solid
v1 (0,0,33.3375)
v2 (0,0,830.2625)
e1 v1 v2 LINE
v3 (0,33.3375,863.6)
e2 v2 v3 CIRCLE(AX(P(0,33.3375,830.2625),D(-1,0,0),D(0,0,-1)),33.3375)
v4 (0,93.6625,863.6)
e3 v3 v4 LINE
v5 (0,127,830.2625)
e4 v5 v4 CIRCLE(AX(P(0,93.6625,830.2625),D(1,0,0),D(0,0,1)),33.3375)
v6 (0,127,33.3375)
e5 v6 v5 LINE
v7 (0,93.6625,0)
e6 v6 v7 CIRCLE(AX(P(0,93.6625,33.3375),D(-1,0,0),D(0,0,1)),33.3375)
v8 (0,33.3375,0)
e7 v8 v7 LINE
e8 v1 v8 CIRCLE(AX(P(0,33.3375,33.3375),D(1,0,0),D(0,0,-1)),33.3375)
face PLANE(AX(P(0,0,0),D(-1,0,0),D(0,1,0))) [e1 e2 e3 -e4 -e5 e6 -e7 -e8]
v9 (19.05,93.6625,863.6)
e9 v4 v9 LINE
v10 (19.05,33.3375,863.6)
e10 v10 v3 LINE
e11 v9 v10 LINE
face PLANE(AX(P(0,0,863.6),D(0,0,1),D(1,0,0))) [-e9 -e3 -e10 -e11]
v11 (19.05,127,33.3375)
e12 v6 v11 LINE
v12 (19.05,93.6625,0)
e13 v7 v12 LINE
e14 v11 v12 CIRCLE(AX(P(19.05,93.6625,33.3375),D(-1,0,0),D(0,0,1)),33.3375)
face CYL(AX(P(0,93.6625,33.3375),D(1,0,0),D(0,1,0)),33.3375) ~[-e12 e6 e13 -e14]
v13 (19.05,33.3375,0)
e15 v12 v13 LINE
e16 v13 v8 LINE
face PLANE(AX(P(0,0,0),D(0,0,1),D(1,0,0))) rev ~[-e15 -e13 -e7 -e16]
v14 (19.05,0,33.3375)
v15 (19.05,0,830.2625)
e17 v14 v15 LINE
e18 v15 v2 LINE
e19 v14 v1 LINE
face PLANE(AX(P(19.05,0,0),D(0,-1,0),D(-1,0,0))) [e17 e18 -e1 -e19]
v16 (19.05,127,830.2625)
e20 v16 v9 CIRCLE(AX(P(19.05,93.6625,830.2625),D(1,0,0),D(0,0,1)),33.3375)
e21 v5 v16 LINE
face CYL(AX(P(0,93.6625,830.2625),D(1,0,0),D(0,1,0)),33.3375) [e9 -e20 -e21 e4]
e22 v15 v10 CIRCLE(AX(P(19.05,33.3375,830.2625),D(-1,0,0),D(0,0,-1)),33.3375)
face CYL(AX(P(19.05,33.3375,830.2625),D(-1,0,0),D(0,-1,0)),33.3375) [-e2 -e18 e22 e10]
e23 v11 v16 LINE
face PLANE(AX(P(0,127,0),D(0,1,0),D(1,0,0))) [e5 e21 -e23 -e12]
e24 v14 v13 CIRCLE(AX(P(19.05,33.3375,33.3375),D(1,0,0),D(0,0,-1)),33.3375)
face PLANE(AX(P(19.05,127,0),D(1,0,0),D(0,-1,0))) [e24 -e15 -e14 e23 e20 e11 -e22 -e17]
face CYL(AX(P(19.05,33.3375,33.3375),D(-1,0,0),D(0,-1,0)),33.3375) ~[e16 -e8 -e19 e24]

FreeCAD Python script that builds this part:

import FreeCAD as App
import Part
import Sketcher
Q = App.Units.Quantity


def edges_at(feature, points):
    """Names of the edges that pass closest to the given points."""
    edges = feature.Shape.Edges
    near = lambda p: min(range(len(edges)), key=lambda i: edges[i].distToShape(Part.Vertex(*p))[0])
    return sorted({f"Edge{near(p) + 1}" for p in points})

doc = App.newDocument("Part")
body = doc.addObject("PartDesign::Body", "Body")

# Sketch on XY plane
sketch1 = body.newObject("Sketcher::SketchObject", "Sketch")
sketch1.AttachmentSupport = (doc.getObject("XY_Plane"), [""])
sketch1.MapMode = "FlatFace"
sketch1.addGeometry(Part.LineSegment(App.Vector(0, 127, 0), App.Vector(0, 0, 0)), False)
sketch1.addGeometry(Part.LineSegment(App.Vector(0, 0, 0), App.Vector(19.05, 0, 0)), False)
sketch1.addGeometry(Part.LineSegment(App.Vector(19.05, 0, 0), App.Vector(19.05, 127, 0)), False)
sketch1.addGeometry(Part.LineSegment(App.Vector(19.05, 127, 0), App.Vector(0, 127, 0)), False)
sketch1.addConstraint(Sketcher.Constraint("Coincident", 0, 2, 1, 1))
sketch1.addConstraint(Sketcher.Constraint("Coincident", 1, 2, 2, 1))
sketch1.addConstraint(Sketcher.Constraint("Coincident", 2, 2, 3, 1))
sketch1.addConstraint(Sketcher.Constraint("Coincident", 3, 2, 0, 1))
sketch1.addConstraint(Sketcher.Constraint("Vertical", 0))
sketch1.addConstraint(Sketcher.Constraint("Horizontal", 1))
sketch1.addConstraint(Sketcher.Constraint("Vertical", 2))
sketch1.addConstraint(Sketcher.Constraint("Horizontal", 3))
sketch1.addConstraint(Sketcher.Constraint("Coincident", 0, 2, -1, 1))
sketch1.addConstraint(Sketcher.Constraint("DistanceY", 0, 2, 0, 1, Q("5 in")))
sketch1.addConstraint(Sketcher.Constraint("DistanceX", 1, 1, 1, 2, Q("0.75 in")))
pad1 = body.newObject("PartDesign::Pad", "Pad")
pad1.Profile = sketch1
pad1.Length = Q("34 in")
doc.recompute()

fillet = body.newObject("PartDesign::Fillet", "Fillet")
fillet.Base = (pad1, edges_at(pad1, [
    (9.525, 127, 863.6),
    (9.525, 0, 863.6),
    (9.525, 127, 0),
    (9.525, 0, 0),
]))
fillet.Radius = Q("1.3125 in")

doc.recompute()
